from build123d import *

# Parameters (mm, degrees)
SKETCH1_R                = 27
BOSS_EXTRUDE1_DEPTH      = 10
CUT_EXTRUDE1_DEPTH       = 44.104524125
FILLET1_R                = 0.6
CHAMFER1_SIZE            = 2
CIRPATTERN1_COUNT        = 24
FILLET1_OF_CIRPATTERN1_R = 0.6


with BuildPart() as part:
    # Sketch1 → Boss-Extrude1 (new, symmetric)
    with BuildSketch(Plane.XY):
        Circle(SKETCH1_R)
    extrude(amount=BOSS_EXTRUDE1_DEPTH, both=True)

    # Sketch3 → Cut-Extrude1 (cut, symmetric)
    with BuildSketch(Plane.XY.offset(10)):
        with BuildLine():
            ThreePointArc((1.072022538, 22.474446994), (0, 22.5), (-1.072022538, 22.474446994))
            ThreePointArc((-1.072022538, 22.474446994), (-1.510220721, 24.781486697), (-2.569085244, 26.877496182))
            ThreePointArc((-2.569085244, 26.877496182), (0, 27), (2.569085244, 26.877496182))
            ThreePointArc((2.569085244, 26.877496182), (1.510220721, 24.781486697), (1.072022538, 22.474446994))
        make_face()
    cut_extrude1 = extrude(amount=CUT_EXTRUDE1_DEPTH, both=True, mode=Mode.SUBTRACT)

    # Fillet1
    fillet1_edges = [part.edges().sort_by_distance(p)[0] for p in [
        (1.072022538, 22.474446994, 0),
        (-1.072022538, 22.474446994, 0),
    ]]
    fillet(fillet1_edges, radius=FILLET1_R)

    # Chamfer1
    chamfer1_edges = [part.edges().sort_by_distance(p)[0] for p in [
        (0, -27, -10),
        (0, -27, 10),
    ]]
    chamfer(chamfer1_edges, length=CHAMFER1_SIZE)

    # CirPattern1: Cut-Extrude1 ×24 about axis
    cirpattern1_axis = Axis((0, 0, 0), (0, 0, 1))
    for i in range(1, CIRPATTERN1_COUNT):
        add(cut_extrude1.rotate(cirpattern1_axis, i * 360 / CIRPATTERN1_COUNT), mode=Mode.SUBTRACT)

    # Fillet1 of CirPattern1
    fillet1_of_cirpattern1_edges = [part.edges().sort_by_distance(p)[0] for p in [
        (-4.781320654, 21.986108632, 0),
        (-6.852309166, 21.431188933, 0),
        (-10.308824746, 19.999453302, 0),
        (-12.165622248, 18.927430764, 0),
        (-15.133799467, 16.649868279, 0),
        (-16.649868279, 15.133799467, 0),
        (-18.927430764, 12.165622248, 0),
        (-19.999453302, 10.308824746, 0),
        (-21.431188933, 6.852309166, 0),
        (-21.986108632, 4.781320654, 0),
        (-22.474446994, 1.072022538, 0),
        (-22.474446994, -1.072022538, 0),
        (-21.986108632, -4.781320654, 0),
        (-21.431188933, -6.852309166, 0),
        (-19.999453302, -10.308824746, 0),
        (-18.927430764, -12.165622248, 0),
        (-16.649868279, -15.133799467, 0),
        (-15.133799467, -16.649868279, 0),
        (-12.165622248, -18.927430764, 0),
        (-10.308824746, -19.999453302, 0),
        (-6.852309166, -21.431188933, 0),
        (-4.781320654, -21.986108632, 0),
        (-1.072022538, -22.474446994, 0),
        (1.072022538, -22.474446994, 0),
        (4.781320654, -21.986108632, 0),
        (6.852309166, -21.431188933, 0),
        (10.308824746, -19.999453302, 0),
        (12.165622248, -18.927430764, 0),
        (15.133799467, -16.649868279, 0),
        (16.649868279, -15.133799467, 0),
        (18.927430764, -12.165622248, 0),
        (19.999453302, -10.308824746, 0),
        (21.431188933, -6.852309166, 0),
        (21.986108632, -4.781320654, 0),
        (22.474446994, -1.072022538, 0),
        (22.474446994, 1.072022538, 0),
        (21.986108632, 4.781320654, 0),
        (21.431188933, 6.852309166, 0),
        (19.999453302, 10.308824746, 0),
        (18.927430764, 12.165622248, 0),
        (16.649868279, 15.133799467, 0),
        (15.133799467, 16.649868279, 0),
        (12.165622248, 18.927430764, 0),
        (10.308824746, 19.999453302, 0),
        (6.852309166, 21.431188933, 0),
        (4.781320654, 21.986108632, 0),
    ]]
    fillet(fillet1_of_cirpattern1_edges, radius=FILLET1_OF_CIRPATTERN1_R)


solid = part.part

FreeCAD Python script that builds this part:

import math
import FreeCAD as App
import Part
import Sketcher


def edges_at(feature, points):
    """Names of the edges that pass closest to the given points."""
    edges = feature.Shape.Edges
    near = lambda p: min(range(len(edges)), key=lambda i: edges[i].distToShape(Part.Vertex(*p))[0])
    return sorted({f"Edge{near(p) + 1}" for p in points})

doc = App.newDocument("Part")
body = doc.addObject("PartDesign::Body", "Body")

# Sketch on XY plane
sketch1 = doc.addObject("Sketcher::SketchObject", "Sketch")
body.addObject(sketch1)
sketch1.AttachmentSupport = (doc.XY_Plane, [""])
sketch1.MapMode = "FlatFace"
sketch1.addGeometry(Part.Circle(App.Vector(0, 0, 0), App.Vector(0, 0, 1), 27), False)
sketch1.addConstraint(Sketcher.Constraint("Coincident", 0, 3, -1, 1))
sketch1.addConstraint(Sketcher.Constraint("Diameter", 0, 54.0))
pad1 = doc.addObject("PartDesign::Pad", "Pad")
body.addObject(pad1)
pad1.Profile = sketch1
pad1.Length = 20
pad1.Midplane = True

# Sketch on XY plane
sketch2 = doc.addObject("Sketcher::SketchObject", "Sketch001")
body.addObject(sketch2)
sketch2.AttachmentSupport = (doc.XY_Plane, [""])
sketch2.MapMode = "FlatFace"
sketch2.AttachmentOffset = App.Placement(App.Vector(0, 0, 10), App.Rotation())
sketch2.addGeometry(Part.ArcOfCircle(Part.Circle(App.Vector(0, 0, 0), App.Vector(0, 0, 1), 22.5), math.radians(87.27), math.radians(92.73)), False)
sketch2.addGeometry(Part.ArcOfCircle(Part.Circle(App.Vector(9.5, 22.1, 0), App.Vector(0, 0, 1), 8.4), math.radians(145), math.radians(177)), False)
sketch2.addGeometry(Part.ArcOfCircle(Part.Circle(App.Vector(0, 0, 0), App.Vector(0, 0, 1), 27), math.radians(84.54), math.radians(95.46)), False)
sketch2.addGeometry(Part.ArcOfCircle(Part.Circle(App.Vector(-9.5, 22.1, 0), App.Vector(0, 0, 1), 8.4), math.radians(3), math.radians(35)), False)
sketch2.addConstraint(Sketcher.Constraint("Coincident", 0, 1, 1, 2))
sketch2.addConstraint(Sketcher.Constraint("Coincident", 1, 1, 2, 1))
sketch2.addConstraint(Sketcher.Constraint("Coincident", 2, 2, 3, 2))
sketch2.addConstraint(Sketcher.Constraint("Coincident", 3, 1, 0, 2))
sketch2.addConstraint(Sketcher.Constraint("Coincident", 0, 3, -1, 1))
sketch2.addConstraint(Sketcher.Constraint("Coincident", 2, 3, -1, 1))
sketch2.addConstraint(Sketcher.Constraint("Equal", 1, 3))
sketch2.addConstraint(Sketcher.Constraint("Symmetric", 1, 3, 3, 3, -2))
sketch2.addConstraint(Sketcher.Constraint("Radius", 2, 27.0))
sketch2.addConstraint(Sketcher.Constraint("Radius", 0, 22.5))
sketch2.addConstraint(Sketcher.Constraint("Radius", 1, 8.4118))
sketch2.addConstraint(Sketcher.Constraint("DistanceX", -1, 1, 1, 3, 9.47427))
sketch2.addConstraint(Sketcher.Constraint("DistanceY", 0, 1, 1, 1, 4.403049))
pocket1 = doc.addObject("PartDesign::Pocket", "Pocket")
body.addObject(pocket1)
pocket1.Profile = sketch2
pocket1.Length = 88.209048
pocket1.Midplane = True
doc.recompute()

fillet = doc.addObject("PartDesign::Fillet", "Fillet")
body.addObject(fillet)
fillet.Base = (pocket1, edges_at(pocket1, [(1.072, 22.474, 0), (-1.072, 22.474, 0)]))
fillet.Radius = 0.6
doc.recompute()

chamfer = doc.addObject("PartDesign::Chamfer", "Chamfer")
body.addObject(chamfer)
chamfer.Base = (fillet, edges_at(fillet, [(0, -27, -10), (0, -27, 10)]))
chamfer.Size = 2
doc.recompute()

polarpattern = doc.addObject("PartDesign::PolarPattern", "PolarPattern")
body.addObject(polarpattern)
polarpattern.Originals = [pocket1]
polarpattern.Axis = (doc.Z_Axis, [""])
polarpattern.Angle = 360
polarpattern.Occurrences = 24
body.Tip = polarpattern
doc.recompute()

fillet2 = doc.addObject("PartDesign::Fillet", "Fillet001")
body.addObject(fillet2)
fillet2.Base = (polarpattern, edges_at(polarpattern, [
    (-4.781, 21.986, 0),
    (-6.852, 21.431, 0),
    (-10.309, 19.999, 0),
    (-12.166, 18.927, 0),
    (-15.134, 16.65, 0),
    (-16.65, 15.134, 0),
    (-18.927, 12.166, 0),
    (-19.999, 10.309, 0),
    (-21.431, 6.852, 0),
    (-21.986, 4.781, 0),
    (-22.474, 1.072, 0),
    (-22.474, -1.072, 0),
    (-21.986, -4.781, 0),
    (-21.431, -6.852, 0),
    (-19.999, -10.309, 0),
    (-18.927, -12.166, 0),
    (-16.65, -15.134, 0),
    (-15.134, -16.65, 0),
    (-12.166, -18.927, 0),
    (-10.309, -19.999, 0),
    (-6.852, -21.431, 0),
    (-4.781, -21.986, 0),
    (-1.072, -22.474, 0),
    (1.072, -22.474, 0),
    (4.781, -21.986, 0),
    (6.852, -21.431, 0),
    (10.309, -19.999, 0),
    (12.166, -18.927, 0),
    (15.134, -16.65, 0),
    (16.65, -15.134, 0),
    (18.927, -12.166, 0),
    (19.999, -10.309, 0),
    (21.431, -6.852, 0),
    (21.986, -4.781, 0),
    (22.474, -1.072, 0),
    (22.474, 1.072, 0),
    (21.986, 4.781, 0),
    (21.431, 6.852, 0),
    (19.999, 10.309, 0),
    (18.927, 12.166, 0),
    (16.65, 15.134, 0),
    (15.134, 16.65, 0),
    (12.166, 18.927, 0),
    (10.309, 19.999, 0),
    (6.852, 21.431, 0),
    (4.781, 21.986, 0),
]))
fillet2.Radius = 0.6

doc.recompute()
